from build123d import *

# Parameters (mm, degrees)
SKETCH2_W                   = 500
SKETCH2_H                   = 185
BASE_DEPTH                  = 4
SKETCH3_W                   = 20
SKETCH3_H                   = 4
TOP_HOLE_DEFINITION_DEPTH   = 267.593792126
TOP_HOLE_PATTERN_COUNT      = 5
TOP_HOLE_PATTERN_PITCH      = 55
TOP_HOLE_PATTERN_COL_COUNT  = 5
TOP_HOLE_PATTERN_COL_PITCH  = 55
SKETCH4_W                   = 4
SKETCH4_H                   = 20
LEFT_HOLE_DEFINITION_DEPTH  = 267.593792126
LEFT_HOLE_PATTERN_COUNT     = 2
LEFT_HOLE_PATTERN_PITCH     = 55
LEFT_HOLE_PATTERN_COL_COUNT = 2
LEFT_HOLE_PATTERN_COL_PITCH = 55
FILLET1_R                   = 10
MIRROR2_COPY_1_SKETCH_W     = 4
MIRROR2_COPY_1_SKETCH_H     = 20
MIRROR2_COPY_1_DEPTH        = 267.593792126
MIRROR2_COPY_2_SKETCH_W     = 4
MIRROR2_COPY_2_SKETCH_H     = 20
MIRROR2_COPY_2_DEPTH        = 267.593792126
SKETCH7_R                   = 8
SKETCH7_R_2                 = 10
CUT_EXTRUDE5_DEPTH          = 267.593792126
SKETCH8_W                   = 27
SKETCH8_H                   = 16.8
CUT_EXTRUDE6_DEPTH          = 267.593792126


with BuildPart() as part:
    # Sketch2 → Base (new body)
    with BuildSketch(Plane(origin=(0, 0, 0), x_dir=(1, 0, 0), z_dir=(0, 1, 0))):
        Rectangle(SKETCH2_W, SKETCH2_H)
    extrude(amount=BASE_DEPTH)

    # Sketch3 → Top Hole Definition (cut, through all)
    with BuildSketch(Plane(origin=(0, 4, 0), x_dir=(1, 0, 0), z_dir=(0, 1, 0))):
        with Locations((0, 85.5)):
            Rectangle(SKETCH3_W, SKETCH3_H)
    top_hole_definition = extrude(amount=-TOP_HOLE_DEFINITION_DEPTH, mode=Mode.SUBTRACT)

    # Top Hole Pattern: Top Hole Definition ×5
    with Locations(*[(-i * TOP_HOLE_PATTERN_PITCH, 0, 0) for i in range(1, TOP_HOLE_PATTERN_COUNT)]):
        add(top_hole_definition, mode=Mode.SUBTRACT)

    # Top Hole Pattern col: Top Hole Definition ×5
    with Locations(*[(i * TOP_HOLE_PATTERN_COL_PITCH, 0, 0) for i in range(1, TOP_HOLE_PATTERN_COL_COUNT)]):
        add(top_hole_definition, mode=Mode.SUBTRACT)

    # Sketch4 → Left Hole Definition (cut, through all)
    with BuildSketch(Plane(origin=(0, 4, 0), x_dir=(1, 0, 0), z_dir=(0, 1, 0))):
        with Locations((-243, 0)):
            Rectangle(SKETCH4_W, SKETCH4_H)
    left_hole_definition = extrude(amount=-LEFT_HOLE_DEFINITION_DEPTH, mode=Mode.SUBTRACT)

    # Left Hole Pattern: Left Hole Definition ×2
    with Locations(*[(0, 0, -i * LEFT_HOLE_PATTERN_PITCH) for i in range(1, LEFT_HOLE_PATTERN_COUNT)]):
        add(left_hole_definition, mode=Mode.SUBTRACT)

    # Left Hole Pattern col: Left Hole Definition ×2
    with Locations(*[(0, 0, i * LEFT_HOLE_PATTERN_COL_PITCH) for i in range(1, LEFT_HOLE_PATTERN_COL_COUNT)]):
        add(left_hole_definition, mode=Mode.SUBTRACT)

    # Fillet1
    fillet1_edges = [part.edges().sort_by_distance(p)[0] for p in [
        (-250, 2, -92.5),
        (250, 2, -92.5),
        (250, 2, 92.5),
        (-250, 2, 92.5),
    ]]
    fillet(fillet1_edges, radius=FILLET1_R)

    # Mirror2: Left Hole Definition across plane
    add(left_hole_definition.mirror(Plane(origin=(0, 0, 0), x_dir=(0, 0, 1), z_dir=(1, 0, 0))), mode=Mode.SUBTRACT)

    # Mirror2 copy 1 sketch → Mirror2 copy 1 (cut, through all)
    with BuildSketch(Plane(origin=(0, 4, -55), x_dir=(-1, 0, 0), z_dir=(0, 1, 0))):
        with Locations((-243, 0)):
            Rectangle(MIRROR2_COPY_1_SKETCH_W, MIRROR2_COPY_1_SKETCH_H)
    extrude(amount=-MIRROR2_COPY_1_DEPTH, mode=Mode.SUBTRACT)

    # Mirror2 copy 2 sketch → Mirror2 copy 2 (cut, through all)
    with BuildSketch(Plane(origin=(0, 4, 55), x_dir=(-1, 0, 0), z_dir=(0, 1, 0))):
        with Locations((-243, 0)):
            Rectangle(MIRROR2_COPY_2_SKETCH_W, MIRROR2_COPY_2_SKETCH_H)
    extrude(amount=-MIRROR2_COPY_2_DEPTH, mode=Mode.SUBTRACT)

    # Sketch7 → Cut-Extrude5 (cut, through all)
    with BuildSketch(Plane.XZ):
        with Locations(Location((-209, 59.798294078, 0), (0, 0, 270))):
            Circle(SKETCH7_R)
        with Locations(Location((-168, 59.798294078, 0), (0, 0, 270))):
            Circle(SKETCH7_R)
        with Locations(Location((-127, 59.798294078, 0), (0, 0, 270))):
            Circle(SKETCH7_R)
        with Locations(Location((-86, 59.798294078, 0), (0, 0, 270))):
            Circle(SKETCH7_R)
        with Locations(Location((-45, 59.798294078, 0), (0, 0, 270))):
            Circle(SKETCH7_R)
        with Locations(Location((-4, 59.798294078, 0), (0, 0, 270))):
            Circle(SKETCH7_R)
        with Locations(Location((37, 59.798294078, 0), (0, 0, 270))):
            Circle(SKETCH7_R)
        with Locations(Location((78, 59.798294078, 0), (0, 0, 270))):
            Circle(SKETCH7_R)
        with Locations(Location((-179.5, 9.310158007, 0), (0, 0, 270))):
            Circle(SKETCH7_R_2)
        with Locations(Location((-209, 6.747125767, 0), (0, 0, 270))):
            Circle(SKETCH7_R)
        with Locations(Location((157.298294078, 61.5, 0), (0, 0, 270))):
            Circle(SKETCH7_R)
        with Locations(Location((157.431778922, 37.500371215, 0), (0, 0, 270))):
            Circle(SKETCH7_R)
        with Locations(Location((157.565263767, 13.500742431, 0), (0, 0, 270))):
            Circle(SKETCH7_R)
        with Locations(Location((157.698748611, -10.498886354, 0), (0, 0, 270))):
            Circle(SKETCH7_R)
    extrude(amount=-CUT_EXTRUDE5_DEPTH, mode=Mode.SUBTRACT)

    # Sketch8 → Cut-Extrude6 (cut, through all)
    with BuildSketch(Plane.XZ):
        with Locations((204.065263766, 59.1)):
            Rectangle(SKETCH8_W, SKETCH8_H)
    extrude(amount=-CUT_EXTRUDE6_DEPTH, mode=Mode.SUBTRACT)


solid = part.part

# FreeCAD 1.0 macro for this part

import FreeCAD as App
import Part
import Sketcher

V = App.Vector
Q = App.Units.Quantity


def edges_at(feature, points):
    """Names of the edges that pass closest to the given points."""
    edges = feature.Shape.Edges
    near = lambda p: min(range(len(edges)), key=lambda i: edges[i].distToShape(Part.Vertex(*p))[0])
    return sorted({f"Edge{near(p) + 1}" for p in points})


def add_polygon(sketch, points):
    """Adds a closed chain of lines whose ends are joined by coincident constraints."""
    first, n = sketch.GeometryCount, len(points)
    for a, b in zip(points, points[1:] + points[:1]):
        sketch.addGeometry(Part.LineSegment(App.Vector(*a, 0), App.Vector(*b, 0)), False)
    for i in range(n):
        sketch.addConstraint(Sketcher.Constraint("Coincident", first + i, 2, first + (i + 1) % n, 1))

doc = App.newDocument("Part")
params = doc.addObject("Spreadsheet::Sheet", "Params")
for row, (alias, value) in enumerate([
    ("sketch1_width", "500 mm"),
    ("sketch1_height", "185 mm"),
    ("pad1_length", "4 mm"),
    ("sketch2_width", "20 mm"),
    ("sketch2_height", "4 mm"),
    ("linearpattern_pitch", "55 mm"),
    ("linearpattern2_pitch", "55 mm"),
    ("sketch3_width", "4 mm"),
    ("sketch3_height", "20 mm"),
    ("linearpattern3_pitch", "55 mm"),
    ("linearpattern4_pitch", "55 mm"),
    ("fillet_radius", "10 mm"),
    ("sketch4_width", "4 mm"),
    ("sketch4_height", "20 mm"),
    ("sketch5_width", "4 mm"),
    ("sketch5_height", "20 mm"),
    ("sketch6_diameter", "16 mm"),
    ("sketch6_diameter2", "20 mm"),
    ("sketch7_width", "27 mm"),
    ("sketch7_height", "16.8 mm"),
], start=1):
    params.set(f"A{row}", alias)
    params.set(f"B{row}", "=" + value)
    params.setAlias(f"B{row}", alias)

body = doc.addObject("PartDesign::Body", "Body")

sketch1 = body.newObject("Sketcher::SketchObject", "Sketch")
sketch1.AttachmentSupport = (doc.getObject("XZ_Plane"), [""])
sketch1.MapMode = "FlatFace"
add_polygon(sketch1, [(-250, -92), (-250, 92), (250, 92), (250, -92)])
sketch1.addConstraint([
    Sketcher.Constraint("Vertical", 0),
    Sketcher.Constraint("Horizontal", 1),
    Sketcher.Constraint("Vertical", 2),
    Sketcher.Constraint("Horizontal", 3),
    Sketcher.Constraint("Symmetric", 0, 2, 2, 2, -1, 1),
    Sketcher.Constraint("DistanceX", 1, 1, 1, 2, Q("500 mm")),
    Sketcher.Constraint("DistanceY", 0, 1, 0, 2, Q("185 mm")),
])
sketch1.setExpression("Constraints[9]", "Params.sketch1_width")
sketch1.setExpression("Constraints[10]", "Params.sketch1_height")
pad1 = body.newObject("PartDesign::Pad", "Pad")
pad1.Profile = sketch1
pad1.setExpression("Length", "Params.pad1_length")
pad1.Reversed = True

sketch2 = body.newObject("Sketcher::SketchObject", "Sketch001")
sketch2.AttachmentSupport = (doc.getObject("XZ_Plane"), [""])
sketch2.MapMode = "FlatFace"
sketch2.AttachmentOffset = App.Placement(V(0, 0, -4), App.Rotation())
add_polygon(sketch2, [(-10, -87.5), (-10, -83.5), (10, -83.5), (10, -87.5)])
sketch2.addConstraint([
    Sketcher.Constraint("Vertical", 0),
    Sketcher.Constraint("Horizontal", 1),
    Sketcher.Constraint("Vertical", 2),
    Sketcher.Constraint("Horizontal", 3),
    Sketcher.Constraint("DistanceX", 1, 1, 1, 2, Q("20 mm")),
    Sketcher.Constraint("DistanceY", 0, 1, 0, 2, Q("4 mm")),
    Sketcher.Constraint("DistanceX", 0, 2, -1, 1, Q("10 mm")),
    Sketcher.Constraint("DistanceY", 0, 2, -1, 1, Q("83.5 mm")),
])
sketch2.setExpression("Constraints[8]", "Params.sketch2_width")
sketch2.setExpression("Constraints[9]", "Params.sketch2_height")
pocket1 = body.newObject("PartDesign::Pocket", "Pocket")
pocket1.Profile = sketch2
pocket1.Type = "ThroughAll"
pocket1.Reversed = True
doc.recompute()

linearpattern = body.newObject("PartDesign::LinearPattern", "LinearPattern")
linearpattern.Originals = [pocket1]
linearpattern.Direction = (doc.getObject("X_Axis"), [""])
linearpattern.Mode = "offset"
linearpattern.setExpression("Offset", "Params.linearpattern_pitch")
linearpattern.Occurrences = 5
linearpattern.Reversed = True
body.Tip = linearpattern
doc.recompute()

linearpattern2 = body.newObject("PartDesign::LinearPattern", "LinearPattern001")
linearpattern2.Originals = [pocket1]
linearpattern2.Direction = (doc.getObject("X_Axis"), [""])
linearpattern2.Mode = "offset"
linearpattern2.setExpression("Offset", "Params.linearpattern2_pitch")
linearpattern2.Occurrences = 5
body.Tip = linearpattern2

sketch3 = body.newObject("Sketcher::SketchObject", "Sketch002")
sketch3.AttachmentSupport = (doc.getObject("XZ_Plane"), [""])
sketch3.MapMode = "FlatFace"
sketch3.AttachmentOffset = App.Placement(V(0, 0, -4), App.Rotation())
add_polygon(sketch3, [(-245, -10), (-245, 10), (-241, 10), (-241, -10)])
sketch3.addConstraint([
    Sketcher.Constraint("Vertical", 0),
    Sketcher.Constraint("Horizontal", 1),
    Sketcher.Constraint("Vertical", 2),
    Sketcher.Constraint("Horizontal", 3),
    Sketcher.Constraint("DistanceX", 1, 1, 1, 2, Q("4 mm")),
    Sketcher.Constraint("DistanceY", 0, 1, 0, 2, Q("20 mm")),
    Sketcher.Constraint("DistanceX", 0, 2, -1, 1, Q("245 mm")),
    Sketcher.Constraint("DistanceY", -1, 1, 0, 2, Q("10 mm")),
])
sketch3.setExpression("Constraints[8]", "Params.sketch3_width")
sketch3.setExpression("Constraints[9]", "Params.sketch3_height")
pocket2 = body.newObject("PartDesign::Pocket", "Pocket001")
pocket2.Profile = sketch3
pocket2.Type = "ThroughAll"
pocket2.Reversed = True
doc.recompute()

linearpattern3 = body.newObject("PartDesign::LinearPattern", "LinearPattern002")
linearpattern3.Originals = [pocket2]
linearpattern3.Direction = (doc.getObject("Z_Axis"), [""])
linearpattern3.Mode = "offset"
linearpattern3.setExpression("Offset", "Params.linearpattern3_pitch")
linearpattern3.Occurrences = 2
linearpattern3.Reversed = True
body.Tip = linearpattern3
doc.recompute()

linearpattern4 = body.newObject("PartDesign::LinearPattern", "LinearPattern003")
linearpattern4.Originals = [pocket2]
linearpattern4.Direction = (doc.getObject("Z_Axis"), [""])
linearpattern4.Mode = "offset"
linearpattern4.setExpression("Offset", "Params.linearpattern4_pitch")
linearpattern4.Occurrences = 2
body.Tip = linearpattern4
doc.recompute()

fillet = body.newObject("PartDesign::Fillet", "Fillet")
fillet.Base = (linearpattern4, edges_at(linearpattern4, [
    (-250, 2, -92.5),
    (250, 2, -92.5),
    (250, 2, 92.5),
    (-250, 2, 92.5),
]))
fillet.setExpression("Radius", "Params.fillet_radius")
doc.recompute()

mirrored = body.newObject("PartDesign::Mirrored", "Mirrored")
mirrored.Originals = [pocket2]
mirrored.MirrorPlane = (doc.getObject("YZ_Plane"), [""])
body.Tip = mirrored

sketch4 = body.newObject("Sketcher::SketchObject", "Sketch003")
sketch4.AttachmentSupport = (doc.getObject("XZ_Plane"), [""])
sketch4.MapMode = "FlatFace"
sketch4.AttachmentOffset = App.Placement(V(0, 0, -4), App.Rotation())
add_polygon(sketch4, [(245, -45), (245, -65), (241, -65), (241, -45)])
sketch4.addConstraint([
    Sketcher.Constraint("Vertical", 0),
    Sketcher.Constraint("Horizontal", 1),
    Sketcher.Constraint("Vertical", 2),
    Sketcher.Constraint("Horizontal", 3),
    Sketcher.Constraint("DistanceX", 1, 2, 1, 1, Q("4 mm")),
    Sketcher.Constraint("DistanceY", 0, 2, 0, 1, Q("20 mm")),
    Sketcher.Constraint("DistanceX", -1, 1, 0, 2, Q("245 mm")),
    Sketcher.Constraint("DistanceY", 0, 2, -1, 1, Q("65 mm")),
])
sketch4.setExpression("Constraints[8]", "Params.sketch4_width")
sketch4.setExpression("Constraints[9]", "Params.sketch4_height")
pocket3 = body.newObject("PartDesign::Pocket", "Pocket002")
pocket3.Profile = sketch4
pocket3.Type = "ThroughAll"
pocket3.Reversed = True

sketch5 = body.newObject("Sketcher::SketchObject", "Sketch004")
sketch5.AttachmentSupport = (doc.getObject("XZ_Plane"), [""])
sketch5.MapMode = "FlatFace"
sketch5.AttachmentOffset = App.Placement(V(0, 0, -4), App.Rotation())
add_polygon(sketch5, [(245, 65), (245, 45), (241, 45), (241, 65)])
sketch5.addConstraint([
    Sketcher.Constraint("Vertical", 0),
    Sketcher.Constraint("Horizontal", 1),
    Sketcher.Constraint("Vertical", 2),
    Sketcher.Constraint("Horizontal", 3),
    Sketcher.Constraint("DistanceX", 1, 2, 1, 1, Q("4 mm")),
    Sketcher.Constraint("DistanceY", 0, 2, 0, 1, Q("20 mm")),
    Sketcher.Constraint("DistanceX", -1, 1, 0, 2, Q("245 mm")),
    Sketcher.Constraint("DistanceY", -1, 1, 0, 2, Q("45 mm")),
])
sketch5.setExpression("Constraints[8]", "Params.sketch5_width")
sketch5.setExpression("Constraints[9]", "Params.sketch5_height")
pocket4 = body.newObject("PartDesign::Pocket", "Pocket003")
pocket4.Profile = sketch5
pocket4.Type = "ThroughAll"
pocket4.Reversed = True

sketch6 = body.newObject("Sketcher::SketchObject", "Sketch005")
sketch6.AttachmentSupport = (doc.getObject("XZ_Plane"), [""])
sketch6.MapMode = "FlatFace"
sketch6.addGeometry([
    Part.Circle(V(-209, 60, 0), V(0, 0, 1), 8),
    Part.Circle(V(-168, 60, 0), V(0, 0, 1), 8),
    Part.Circle(V(-127, 60, 0), V(0, 0, 1), 8),
    Part.Circle(V(-86, 60, 0), V(0, 0, 1), 8),
    Part.Circle(V(-45, 60, 0), V(0, 0, 1), 8),
    Part.Circle(V(-4, 60, 0), V(0, 0, 1), 8),
    Part.Circle(V(37, 60, 0), V(0, 0, 1), 8),
    Part.Circle(V(78, 60, 0), V(0, 0, 1), 8),
    Part.Circle(V(-180, 9, 0), V(0, 0, 1), 10),
    Part.Circle(V(-209, 7, 0), V(0, 0, 1), 8),
    Part.Circle(V(157, 62, 0), V(0, 0, 1), 8),
    Part.Circle(V(157, 38, 0), V(0, 0, 1), 8),
    Part.Circle(V(158, 14, 0), V(0, 0, 1), 8),
    Part.Circle(V(158, -10, 0), V(0, 0, 1), 8),
], False)
sketch6.addConstraint([
    Sketcher.Constraint("Equal", 0, 1),
    Sketcher.Constraint("Equal", 1, 2),
    Sketcher.Constraint("Equal", 2, 3),
    Sketcher.Constraint("Equal", 3, 4),
    Sketcher.Constraint("Equal", 4, 5),
    Sketcher.Constraint("Equal", 5, 6),
    Sketcher.Constraint("Equal", 6, 7),
    Sketcher.Constraint("Equal", 7, 9),
    Sketcher.Constraint("Equal", 9, 10),
    Sketcher.Constraint("Equal", 10, 11),
    Sketcher.Constraint("Equal", 11, 12),
    Sketcher.Constraint("Equal", 12, 13),
    Sketcher.Constraint("Horizontal", 0, 3, 1, 3),
    Sketcher.Constraint("Horizontal", 1, 3, 2, 3),
    Sketcher.Constraint("Horizontal", 2, 3, 3, 3),
    Sketcher.Constraint("Horizontal", 3, 3, 4, 3),
    Sketcher.Constraint("Horizontal", 4, 3, 5, 3),
    Sketcher.Constraint("Horizontal", 5, 3, 6, 3),
    Sketcher.Constraint("Horizontal", 6, 3, 7, 3),
    Sketcher.Constraint("Vertical", 0, 3, 9, 3),
    Sketcher.Constraint("Diameter", 0, Q("16 mm")),
    Sketcher.Constraint("Diameter", 8, Q("20 mm")),
    Sketcher.Constraint("DistanceX", 0, 3, -1, 1, Q("209 mm")),
    Sketcher.Constraint("DistanceX", 1, 3, -1, 1, Q("168 mm")),
    Sketcher.Constraint("DistanceX", 2, 3, -1, 1, Q("127 mm")),
    Sketcher.Constraint("DistanceX", 3, 3, -1, 1, Q("86 mm")),
    Sketcher.Constraint("DistanceX", 4, 3, -1, 1, Q("45 mm")),
    Sketcher.Constraint("DistanceX", 5, 3, -1, 1, Q("4 mm")),
    Sketcher.Constraint("DistanceX", -1, 1, 6, 3, Q("37 mm")),
    Sketcher.Constraint("DistanceX", -1, 1, 7, 3, Q("78 mm")),
    Sketcher.Constraint("DistanceX", 8, 3, -1, 1, Q("179.5 mm")),
    Sketcher.Constraint("DistanceY", -1, 1, 10, 3, Q("61.5 mm")),
    Sketcher.Constraint("DistanceY", -1, 1, 8, 3, Q("9.310158 mm")),
    Sketcher.Constraint("DistanceX", -1, 1, 11, 3, Q("157.431779 mm")),
    Sketcher.Constraint("DistanceY", -1, 1, 11, 3, Q("37.500371 mm")),
    Sketcher.Constraint("DistanceX", -1, 1, 13, 3, Q("157.698749 mm")),
    Sketcher.Constraint("DistanceY", 9, 3, 0, 3, Q("53.051168 mm")),
    Sketcher.Constraint("DistanceY", 12, 3, 11, 3, Q("23.999629 mm")),
    Sketcher.Constraint("DistanceX", 10, 3, 12, 3, Q("0.26697 mm")),
    Sketcher.Constraint("DistanceY", 12, 3, 7, 3, Q("46.297552 mm")),
    Sketcher.Constraint("DistanceY", 13, 3, 12, 3, Q("23.999629 mm")),
    Sketcher.Constraint("DistanceX", -1, 1, 10, 3, Q("157.298294 mm")),
])
sketch6.setExpression("Constraints[20]", "Params.sketch6_diameter")
sketch6.setExpression("Constraints[21]", "Params.sketch6_diameter2")
pocket5 = body.newObject("PartDesign::Pocket", "Pocket004")
pocket5.Profile = sketch6
pocket5.Type = "ThroughAll"

sketch7 = body.newObject("Sketcher::SketchObject", "Sketch006")
sketch7.AttachmentSupport = (doc.getObject("XZ_Plane"), [""])
sketch7.MapMode = "FlatFace"
add_polygon(sketch7, [(191, 68), (191, 51), (218, 51), (218, 68)])
sketch7.addConstraint([
    Sketcher.Constraint("Vertical", 0),
    Sketcher.Constraint("Horizontal", 1),
    Sketcher.Constraint("Vertical", 2),
    Sketcher.Constraint("Horizontal", 3),
    Sketcher.Constraint("DistanceX", 1, 1, 1, 2, Q("27 mm")),
    Sketcher.Constraint("DistanceY", 0, 2, 0, 1, Q("16.8 mm")),
    Sketcher.Constraint("DistanceY", -1, 1, 0, 2, Q("50.7 mm")),
    Sketcher.Constraint("DistanceX", -1, 1, 0, 2, Q("190.565264 mm")),
])
sketch7.setExpression("Constraints[8]", "Params.sketch7_width")
sketch7.setExpression("Constraints[9]", "Params.sketch7_height")
pocket6 = body.newObject("PartDesign::Pocket", "Pocket005")
pocket6.Profile = sketch7
pocket6.Type = "ThroughAll"

doc.recompute()
